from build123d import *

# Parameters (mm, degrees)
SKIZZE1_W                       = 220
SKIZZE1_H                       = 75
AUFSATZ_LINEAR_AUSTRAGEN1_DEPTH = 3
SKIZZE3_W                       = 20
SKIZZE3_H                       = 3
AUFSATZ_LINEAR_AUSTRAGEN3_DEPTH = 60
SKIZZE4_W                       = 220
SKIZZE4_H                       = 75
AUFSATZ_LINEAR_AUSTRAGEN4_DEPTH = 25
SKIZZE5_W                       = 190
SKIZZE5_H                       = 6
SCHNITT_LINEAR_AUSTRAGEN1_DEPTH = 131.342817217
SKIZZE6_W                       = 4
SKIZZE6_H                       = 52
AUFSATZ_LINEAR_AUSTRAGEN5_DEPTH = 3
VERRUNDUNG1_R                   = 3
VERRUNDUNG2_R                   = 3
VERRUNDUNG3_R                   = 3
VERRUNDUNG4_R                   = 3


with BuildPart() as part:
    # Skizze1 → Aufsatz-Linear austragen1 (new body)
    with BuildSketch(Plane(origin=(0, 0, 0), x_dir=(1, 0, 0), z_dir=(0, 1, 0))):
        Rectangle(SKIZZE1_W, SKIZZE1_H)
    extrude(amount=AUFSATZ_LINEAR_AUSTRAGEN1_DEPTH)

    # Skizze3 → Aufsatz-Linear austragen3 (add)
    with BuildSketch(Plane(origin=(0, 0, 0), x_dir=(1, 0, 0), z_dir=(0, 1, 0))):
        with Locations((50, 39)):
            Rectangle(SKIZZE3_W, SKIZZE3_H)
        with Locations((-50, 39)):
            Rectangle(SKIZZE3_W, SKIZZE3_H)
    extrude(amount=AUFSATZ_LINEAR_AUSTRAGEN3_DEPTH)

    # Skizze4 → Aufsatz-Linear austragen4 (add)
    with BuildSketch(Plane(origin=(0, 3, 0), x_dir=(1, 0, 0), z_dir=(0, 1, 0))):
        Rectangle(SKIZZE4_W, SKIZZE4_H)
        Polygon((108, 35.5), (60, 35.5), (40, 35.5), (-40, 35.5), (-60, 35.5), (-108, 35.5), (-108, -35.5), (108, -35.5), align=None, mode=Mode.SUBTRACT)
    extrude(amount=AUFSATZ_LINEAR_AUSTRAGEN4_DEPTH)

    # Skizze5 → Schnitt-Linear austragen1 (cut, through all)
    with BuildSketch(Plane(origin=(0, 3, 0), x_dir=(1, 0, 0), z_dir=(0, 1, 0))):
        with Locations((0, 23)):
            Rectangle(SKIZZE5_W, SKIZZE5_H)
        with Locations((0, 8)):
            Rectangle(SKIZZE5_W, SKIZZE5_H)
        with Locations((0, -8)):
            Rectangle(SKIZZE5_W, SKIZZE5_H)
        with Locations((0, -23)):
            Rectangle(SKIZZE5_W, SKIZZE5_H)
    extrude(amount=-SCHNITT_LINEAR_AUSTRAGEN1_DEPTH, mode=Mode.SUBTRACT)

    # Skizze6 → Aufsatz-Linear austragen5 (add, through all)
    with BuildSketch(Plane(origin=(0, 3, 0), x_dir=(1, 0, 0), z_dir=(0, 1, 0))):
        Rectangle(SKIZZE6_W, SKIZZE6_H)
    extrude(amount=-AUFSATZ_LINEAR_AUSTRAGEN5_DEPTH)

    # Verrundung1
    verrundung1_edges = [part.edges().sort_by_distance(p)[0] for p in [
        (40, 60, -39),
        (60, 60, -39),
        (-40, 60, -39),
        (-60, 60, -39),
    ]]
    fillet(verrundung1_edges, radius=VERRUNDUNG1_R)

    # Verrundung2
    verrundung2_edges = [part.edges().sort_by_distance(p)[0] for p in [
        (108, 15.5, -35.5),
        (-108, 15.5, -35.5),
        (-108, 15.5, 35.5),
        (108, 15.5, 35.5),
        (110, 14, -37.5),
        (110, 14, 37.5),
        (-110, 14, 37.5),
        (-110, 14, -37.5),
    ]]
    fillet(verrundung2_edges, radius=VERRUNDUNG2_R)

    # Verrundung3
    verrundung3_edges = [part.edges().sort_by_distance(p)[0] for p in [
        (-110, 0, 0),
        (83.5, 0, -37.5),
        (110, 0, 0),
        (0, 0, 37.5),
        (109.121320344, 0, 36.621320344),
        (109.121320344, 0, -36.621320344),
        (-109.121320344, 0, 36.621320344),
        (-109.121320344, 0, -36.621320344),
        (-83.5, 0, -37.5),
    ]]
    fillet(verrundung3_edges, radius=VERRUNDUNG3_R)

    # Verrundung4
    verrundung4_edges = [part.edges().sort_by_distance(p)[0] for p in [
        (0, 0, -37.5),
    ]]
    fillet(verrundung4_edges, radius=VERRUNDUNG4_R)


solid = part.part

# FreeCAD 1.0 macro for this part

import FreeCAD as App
import Part
import Sketcher

V = App.Vector


def edges_at(feature, points):
    """Names of the edges that pass closest to the given points."""
    edges = feature.Shape.Edges
    near = lambda p: min(range(len(edges)), key=lambda i: edges[i].distToShape(Part.Vertex(*p))[0])
    return sorted({f"Edge{near(p) + 1}" for p in points})

doc = App.newDocument("Part")
body = doc.addObject("PartDesign::Body", "Body")

# Sketch on XZ plane
sketch1 = body.newObject("Sketcher::SketchObject", "Sketch")
sketch1.AttachmentSupport = (doc.getObject("XZ_Plane"), [""])
sketch1.MapMode = "FlatFace"
sketch1.addGeometry(Part.LineSegment(V(-110, -38, 0), V(-110, 38, 0)), False)
sketch1.addGeometry(Part.LineSegment(V(-110, 38, 0), V(110, 38, 0)), False)
sketch1.addGeometry(Part.LineSegment(V(110, 38, 0), V(110, -38, 0)), False)
sketch1.addGeometry(Part.LineSegment(V(110, -38, 0), V(-110, -38, 0)), False)
sketch1.addConstraint(Sketcher.Constraint("Coincident", 0, 2, 1, 1))
sketch1.addConstraint(Sketcher.Constraint("Coincident", 1, 2, 2, 1))
sketch1.addConstraint(Sketcher.Constraint("Coincident", 2, 2, 3, 1))
sketch1.addConstraint(Sketcher.Constraint("Coincident", 3, 2, 0, 1))
sketch1.addConstraint(Sketcher.Constraint("Vertical", 0))
sketch1.addConstraint(Sketcher.Constraint("Horizontal", 1))
sketch1.addConstraint(Sketcher.Constraint("Vertical", 2))
sketch1.addConstraint(Sketcher.Constraint("Horizontal", 3))
sketch1.addConstraint(Sketcher.Constraint("Symmetric", 0, 2, 2, 2, -1, 1))
sketch1.addConstraint(Sketcher.Constraint("DistanceX", 1, 1, 1, 2, 220.0))
sketch1.addConstraint(Sketcher.Constraint("DistanceY", 0, 1, 0, 2, 75.0))
pad1 = body.newObject("PartDesign::Pad", "Pad")
pad1.Profile = sketch1
pad1.Length = 3
pad1.Reversed = True

# Sketch on XZ plane
sketch2 = body.newObject("Sketcher::SketchObject", "Sketch001")
sketch2.AttachmentSupport = (doc.getObject("XZ_Plane"), [""])
sketch2.MapMode = "FlatFace"
sketch2.addGeometry(Part.LineSegment(V(40, -40.5, 0), V(40, -37.5, 0)), False)
sketch2.addGeometry(Part.LineSegment(V(40, -37.5, 0), V(60, -37.5, 0)), False)
sketch2.addGeometry(Part.LineSegment(V(60, -37.5, 0), V(60, -40.5, 0)), False)
sketch2.addGeometry(Part.LineSegment(V(60, -40.5, 0), V(40, -40.5, 0)), False)
sketch2.addGeometry(Part.LineSegment(V(-60, -40.5, 0), V(-60, -37.5, 0)), False)
sketch2.addGeometry(Part.LineSegment(V(-60, -37.5, 0), V(-40, -37.5, 0)), False)
sketch2.addGeometry(Part.LineSegment(V(-40, -37.5, 0), V(-40, -40.5, 0)), False)
sketch2.addGeometry(Part.LineSegment(V(-40, -40.5, 0), V(-60, -40.5, 0)), False)
sketch2.addConstraint(Sketcher.Constraint("Coincident", 0, 2, 1, 1))
sketch2.addConstraint(Sketcher.Constraint("Coincident", 1, 2, 2, 1))
sketch2.addConstraint(Sketcher.Constraint("Coincident", 2, 2, 3, 1))
sketch2.addConstraint(Sketcher.Constraint("Coincident", 3, 2, 0, 1))
sketch2.addConstraint(Sketcher.Constraint("Coincident", 4, 2, 5, 1))
sketch2.addConstraint(Sketcher.Constraint("Coincident", 5, 2, 6, 1))
sketch2.addConstraint(Sketcher.Constraint("Coincident", 6, 2, 7, 1))
sketch2.addConstraint(Sketcher.Constraint("Coincident", 7, 2, 4, 1))
sketch2.addConstraint(Sketcher.Constraint("Vertical", 0))
sketch2.addConstraint(Sketcher.Constraint("Horizontal", 1))
sketch2.addConstraint(Sketcher.Constraint("Vertical", 2))
sketch2.addConstraint(Sketcher.Constraint("Horizontal", 3))
sketch2.addConstraint(Sketcher.Constraint("Vertical", 4))
sketch2.addConstraint(Sketcher.Constraint("Horizontal", 5))
sketch2.addConstraint(Sketcher.Constraint("Vertical", 6))
sketch2.addConstraint(Sketcher.Constraint("Horizontal", 7))
sketch2.addConstraint(Sketcher.Constraint("Symmetric", 1, 2, 4, 2, -2))
sketch2.addConstraint(Sketcher.Constraint("Symmetric", 3, 2, 6, 2, -2))
sketch2.addConstraint(Sketcher.Constraint("DistanceX", 1, 1, 1, 2, 20.0))
sketch2.addConstraint(Sketcher.Constraint("DistanceY", 0, 1, 0, 2, 3.0))
sketch2.addConstraint(Sketcher.Constraint("DistanceX", -1, 1, 0, 2, 40.0))
sketch2.addConstraint(Sketcher.Constraint("DistanceY", 0, 2, -1, 1, 37.5))
pad2 = body.newObject("PartDesign::Pad", "Pad001")
pad2.Profile = sketch2
pad2.Length = 60
pad2.Reversed = True

# Sketch on XZ plane
sketch3 = body.newObject("Sketcher::SketchObject", "Sketch002")
sketch3.AttachmentSupport = (doc.getObject("XZ_Plane"), [""])
sketch3.MapMode = "FlatFace"
sketch3.AttachmentOffset = App.Placement(V(0, 0, -3), App.Rotation())
sketch3.addGeometry(Part.LineSegment(V(-110, -38, 0), V(-110, 38, 0)), False)
sketch3.addGeometry(Part.LineSegment(V(-110, 38, 0), V(110, 38, 0)), False)
sketch3.addGeometry(Part.LineSegment(V(110, 38, 0), V(110, -38, 0)), False)
sketch3.addGeometry(Part.LineSegment(V(110, -38, 0), V(-110, -38, 0)), False)
sketch3.addGeometry(Part.LineSegment(V(-108, -36, 0), V(108, -36, 0)), False)
sketch3.addGeometry(Part.LineSegment(V(108, -36, 0), V(108, 36, 0)), False)
sketch3.addGeometry(Part.LineSegment(V(108, 36, 0), V(-108, 36, 0)), False)
sketch3.addGeometry(Part.LineSegment(V(-108, 36, 0), V(-108, -36, 0)), False)
sketch3.addConstraint(Sketcher.Constraint("Coincident", 0, 2, 1, 1))
sketch3.addConstraint(Sketcher.Constraint("Coincident", 1, 2, 2, 1))
sketch3.addConstraint(Sketcher.Constraint("Coincident", 2, 2, 3, 1))
sketch3.addConstraint(Sketcher.Constraint("Coincident", 3, 2, 0, 1))
sketch3.addConstraint(Sketcher.Constraint("Coincident", 4, 2, 5, 1))
sketch3.addConstraint(Sketcher.Constraint("Coincident", 5, 2, 6, 1))
sketch3.addConstraint(Sketcher.Constraint("Coincident", 6, 2, 7, 1))
sketch3.addConstraint(Sketcher.Constraint("Coincident", 7, 2, 4, 1))
sketch3.addConstraint(Sketcher.Constraint("Vertical", 0))
sketch3.addConstraint(Sketcher.Constraint("Horizontal", 1))
sketch3.addConstraint(Sketcher.Constraint("Vertical", 2))
sketch3.addConstraint(Sketcher.Constraint("Horizontal", 3))
sketch3.addConstraint(Sketcher.Constraint("Horizontal", 4))
sketch3.addConstraint(Sketcher.Constraint("Vertical", 5))
sketch3.addConstraint(Sketcher.Constraint("Horizontal", 6))
sketch3.addConstraint(Sketcher.Constraint("Vertical", 7))
sketch3.addConstraint(Sketcher.Constraint("Symmetric", 0, 2, 2, 2, -1, 1))
sketch3.addConstraint(Sketcher.Constraint("Symmetric", 4, 2, 6, 2, -1, 1))
sketch3.addConstraint(Sketcher.Constraint("DistanceX", 1, 1, 1, 2, 220.0))
sketch3.addConstraint(Sketcher.Constraint("DistanceX", 4, 1, 4, 2, 216.0))
sketch3.addConstraint(Sketcher.Constraint("DistanceY", 0, 1, 0, 2, 75.0))
sketch3.addConstraint(Sketcher.Constraint("DistanceY", 5, 1, 5, 2, 71.0))
pad3 = body.newObject("PartDesign::Pad", "Pad002")
pad3.Profile = sketch3
pad3.Length = 25
pad3.Reversed = True

# Sketch on XZ plane
sketch4 = body.newObject("Sketcher::SketchObject", "Sketch003")
sketch4.AttachmentSupport = (doc.getObject("XZ_Plane"), [""])
sketch4.MapMode = "FlatFace"
sketch4.AttachmentOffset = App.Placement(V(0, 0, -3), App.Rotation())
sketch4.addGeometry(Part.LineSegment(V(-95, -26, 0), V(-95, -20, 0)), False)
sketch4.addGeometry(Part.LineSegment(V(-95, -20, 0), V(95, -20, 0)), False)
sketch4.addGeometry(Part.LineSegment(V(95, -20, 0), V(95, -26, 0)), False)
sketch4.addGeometry(Part.LineSegment(V(95, -26, 0), V(-95, -26, 0)), False)
sketch4.addGeometry(Part.LineSegment(V(-95, -11, 0), V(-95, -5, 0)), False)
sketch4.addGeometry(Part.LineSegment(V(-95, -5, 0), V(95, -5, 0)), False)
sketch4.addGeometry(Part.LineSegment(V(95, -5, 0), V(95, -11, 0)), False)
sketch4.addGeometry(Part.LineSegment(V(95, -11, 0), V(-95, -11, 0)), False)
sketch4.addGeometry(Part.LineSegment(V(-95, 5, 0), V(-95, 11, 0)), False)
sketch4.addGeometry(Part.LineSegment(V(-95, 11, 0), V(95, 11, 0)), False)
sketch4.addGeometry(Part.LineSegment(V(95, 11, 0), V(95, 5, 0)), False)
sketch4.addGeometry(Part.LineSegment(V(95, 5, 0), V(-95, 5, 0)), False)
sketch4.addGeometry(Part.LineSegment(V(-95, 20, 0), V(-95, 26, 0)), False)
sketch4.addGeometry(Part.LineSegment(V(-95, 26, 0), V(95, 26, 0)), False)
sketch4.addGeometry(Part.LineSegment(V(95, 26, 0), V(95, 20, 0)), False)
sketch4.addGeometry(Part.LineSegment(V(95, 20, 0), V(-95, 20, 0)), False)
sketch4.addConstraint(Sketcher.Constraint("Coincident", 0, 2, 1, 1))
sketch4.addConstraint(Sketcher.Constraint("Coincident", 1, 2, 2, 1))
sketch4.addConstraint(Sketcher.Constraint("Coincident", 2, 2, 3, 1))
sketch4.addConstraint(Sketcher.Constraint("Coincident", 3, 2, 0, 1))
sketch4.addConstraint(Sketcher.Constraint("Coincident", 4, 2, 5, 1))
sketch4.addConstraint(Sketcher.Constraint("Coincident", 5, 2, 6, 1))
sketch4.addConstraint(Sketcher.Constraint("Coincident", 6, 2, 7, 1))
sketch4.addConstraint(Sketcher.Constraint("Coincident", 7, 2, 4, 1))
sketch4.addConstraint(Sketcher.Constraint("Coincident", 8, 2, 9, 1))
sketch4.addConstraint(Sketcher.Constraint("Coincident", 9, 2, 10, 1))
sketch4.addConstraint(Sketcher.Constraint("Coincident", 10, 2, 11, 1))
sketch4.addConstraint(Sketcher.Constraint("Coincident", 11, 2, 8, 1))
sketch4.addConstraint(Sketcher.Constraint("Coincident", 12, 2, 13, 1))
sketch4.addConstraint(Sketcher.Constraint("Coincident", 13, 2, 14, 1))
sketch4.addConstraint(Sketcher.Constraint("Coincident", 14, 2, 15, 1))
sketch4.addConstraint(Sketcher.Constraint("Coincident", 15, 2, 12, 1))
sketch4.addConstraint(Sketcher.Constraint("Vertical", 0))
sketch4.addConstraint(Sketcher.Constraint("Horizontal", 1))
sketch4.addConstraint(Sketcher.Constraint("Vertical", 2))
sketch4.addConstraint(Sketcher.Constraint("Horizontal", 3))
sketch4.addConstraint(Sketcher.Constraint("Vertical", 4))
sketch4.addConstraint(Sketcher.Constraint("Horizontal", 5))
sketch4.addConstraint(Sketcher.Constraint("Vertical", 6))
sketch4.addConstraint(Sketcher.Constraint("Horizontal", 7))
sketch4.addConstraint(Sketcher.Constraint("Vertical", 8))
sketch4.addConstraint(Sketcher.Constraint("Horizontal", 9))
sketch4.addConstraint(Sketcher.Constraint("Vertical", 10))
sketch4.addConstraint(Sketcher.Constraint("Horizontal", 11))
sketch4.addConstraint(Sketcher.Constraint("Vertical", 12))
sketch4.addConstraint(Sketcher.Constraint("Horizontal", 13))
sketch4.addConstraint(Sketcher.Constraint("Vertical", 14))
sketch4.addConstraint(Sketcher.Constraint("Horizontal", 15))
sketch4.addConstraint(Sketcher.Constraint("Symmetric", 6, 2, 8, 2, -1, 1))
sketch4.addConstraint(Sketcher.Constraint("Symmetric", 4, 2, 10, 2, -1, 1))
sketch4.addConstraint(Sketcher.Constraint("Symmetric", 2, 2, 12, 2, -1, 1))
sketch4.addConstraint(Sketcher.Constraint("Symmetric", 0, 2, 14, 2, -1, 1))
sketch4.addConstraint(Sketcher.Constraint("Vertical", 3, 2, 4, 2))
sketch4.addConstraint(Sketcher.Constraint("Vertical", 2, 2, 5, 2))
sketch4.addConstraint(Sketcher.Constraint("Vertical", 7, 2, 8, 2))
sketch4.addConstraint(Sketcher.Constraint("Equal", 2, 4))
sketch4.addConstraint(Sketcher.Constraint("DistanceX", 1, 1, 1, 2, 190.0))
sketch4.addConstraint(Sketcher.Constraint("DistanceY", 0, 1, 0, 2, 6.0))
sketch4.addConstraint(Sketcher.Constraint("DistanceY", 0, 2, -1, 1, 20.0))
sketch4.addConstraint(Sketcher.Constraint("DistanceY", 4, 2, -1, 1, 5.0))
pocket1 = body.newObject("PartDesign::Pocket", "Pocket")
pocket1.Profile = sketch4
pocket1.Type = "ThroughAll"
pocket1.Reversed = True

# Sketch on XZ plane
sketch5 = body.newObject("Sketcher::SketchObject", "Sketch004")
sketch5.AttachmentSupport = (doc.getObject("XZ_Plane"), [""])
sketch5.MapMode = "FlatFace"
sketch5.AttachmentOffset = App.Placement(V(0, 0, -3), App.Rotation())
sketch5.addGeometry(Part.LineSegment(V(-2, -26, 0), V(-2, 26, 0)), False)
sketch5.addGeometry(Part.LineSegment(V(-2, 26, 0), V(2, 26, 0)), False)
sketch5.addGeometry(Part.LineSegment(V(2, 26, 0), V(2, -26, 0)), False)
sketch5.addGeometry(Part.LineSegment(V(2, -26, 0), V(-2, -26, 0)), False)
sketch5.addConstraint(Sketcher.Constraint("Coincident", 0, 2, 1, 1))
sketch5.addConstraint(Sketcher.Constraint("Coincident", 1, 2, 2, 1))
sketch5.addConstraint(Sketcher.Constraint("Coincident", 2, 2, 3, 1))
sketch5.addConstraint(Sketcher.Constraint("Coincident", 3, 2, 0, 1))
sketch5.addConstraint(Sketcher.Constraint("Vertical", 0))
sketch5.addConstraint(Sketcher.Constraint("Horizontal", 1))
sketch5.addConstraint(Sketcher.Constraint("Vertical", 2))
sketch5.addConstraint(Sketcher.Constraint("Horizontal", 3))
sketch5.addConstraint(Sketcher.Constraint("Symmetric", 0, 2, 2, 2, -1, 1))
sketch5.addConstraint(Sketcher.Constraint("DistanceX", 1, 1, 1, 2, 4.0))
sketch5.addConstraint(Sketcher.Constraint("DistanceY", 0, 1, 0, 2, 52.0))
pad4 = body.newObject("PartDesign::Pad", "Pad003")
pad4.Profile = sketch5
pad4.Type = "UpToLast"
doc.recompute()

fillet = body.newObject("PartDesign::Fillet", "Fillet")
fillet.Base = (pad4, edges_at(pad4, [
    (40, 60, -39),
    (60, 60, -39),
    (-40, 60, -39),
    (-60, 60, -39),
]))
fillet.Radius = 3
doc.recompute()

fillet2 = body.newObject("PartDesign::Fillet", "Fillet001")
fillet2.Base = (fillet, edges_at(fillet, [
    (108, 15.5, -35.5),
    (-108, 15.5, -35.5),
    (-108, 15.5, 35.5),
    (108, 15.5, 35.5),
    (110, 14, -37.5),
    (110, 14, 37.5),
    (-110, 14, 37.5),
    (-110, 14, -37.5),
]))
fillet2.Radius = 3
doc.recompute()

fillet3 = body.newObject("PartDesign::Fillet", "Fillet002")
fillet3.Base = (fillet2, edges_at(fillet2, [
    (-110, 0, 0),
    (83.5, 0, -37.5),
    (110, 0, 0),
    (0, 0, 37.5),
    (109.121, 0, 36.621),
    (109.121, 0, -36.621),
    (-109.121, 0, 36.621),
    (-109.121, 0, -36.621),
    (-83.5, 0, -37.5),
]))
fillet3.Radius = 3
doc.recompute()

fillet4 = body.newObject("PartDesign::Fillet", "Fillet003")
fillet4.Base = (fillet3, edges_at(fillet3, [(0, 0, -37.5)]))
fillet4.Radius = 3

doc.recompute()
